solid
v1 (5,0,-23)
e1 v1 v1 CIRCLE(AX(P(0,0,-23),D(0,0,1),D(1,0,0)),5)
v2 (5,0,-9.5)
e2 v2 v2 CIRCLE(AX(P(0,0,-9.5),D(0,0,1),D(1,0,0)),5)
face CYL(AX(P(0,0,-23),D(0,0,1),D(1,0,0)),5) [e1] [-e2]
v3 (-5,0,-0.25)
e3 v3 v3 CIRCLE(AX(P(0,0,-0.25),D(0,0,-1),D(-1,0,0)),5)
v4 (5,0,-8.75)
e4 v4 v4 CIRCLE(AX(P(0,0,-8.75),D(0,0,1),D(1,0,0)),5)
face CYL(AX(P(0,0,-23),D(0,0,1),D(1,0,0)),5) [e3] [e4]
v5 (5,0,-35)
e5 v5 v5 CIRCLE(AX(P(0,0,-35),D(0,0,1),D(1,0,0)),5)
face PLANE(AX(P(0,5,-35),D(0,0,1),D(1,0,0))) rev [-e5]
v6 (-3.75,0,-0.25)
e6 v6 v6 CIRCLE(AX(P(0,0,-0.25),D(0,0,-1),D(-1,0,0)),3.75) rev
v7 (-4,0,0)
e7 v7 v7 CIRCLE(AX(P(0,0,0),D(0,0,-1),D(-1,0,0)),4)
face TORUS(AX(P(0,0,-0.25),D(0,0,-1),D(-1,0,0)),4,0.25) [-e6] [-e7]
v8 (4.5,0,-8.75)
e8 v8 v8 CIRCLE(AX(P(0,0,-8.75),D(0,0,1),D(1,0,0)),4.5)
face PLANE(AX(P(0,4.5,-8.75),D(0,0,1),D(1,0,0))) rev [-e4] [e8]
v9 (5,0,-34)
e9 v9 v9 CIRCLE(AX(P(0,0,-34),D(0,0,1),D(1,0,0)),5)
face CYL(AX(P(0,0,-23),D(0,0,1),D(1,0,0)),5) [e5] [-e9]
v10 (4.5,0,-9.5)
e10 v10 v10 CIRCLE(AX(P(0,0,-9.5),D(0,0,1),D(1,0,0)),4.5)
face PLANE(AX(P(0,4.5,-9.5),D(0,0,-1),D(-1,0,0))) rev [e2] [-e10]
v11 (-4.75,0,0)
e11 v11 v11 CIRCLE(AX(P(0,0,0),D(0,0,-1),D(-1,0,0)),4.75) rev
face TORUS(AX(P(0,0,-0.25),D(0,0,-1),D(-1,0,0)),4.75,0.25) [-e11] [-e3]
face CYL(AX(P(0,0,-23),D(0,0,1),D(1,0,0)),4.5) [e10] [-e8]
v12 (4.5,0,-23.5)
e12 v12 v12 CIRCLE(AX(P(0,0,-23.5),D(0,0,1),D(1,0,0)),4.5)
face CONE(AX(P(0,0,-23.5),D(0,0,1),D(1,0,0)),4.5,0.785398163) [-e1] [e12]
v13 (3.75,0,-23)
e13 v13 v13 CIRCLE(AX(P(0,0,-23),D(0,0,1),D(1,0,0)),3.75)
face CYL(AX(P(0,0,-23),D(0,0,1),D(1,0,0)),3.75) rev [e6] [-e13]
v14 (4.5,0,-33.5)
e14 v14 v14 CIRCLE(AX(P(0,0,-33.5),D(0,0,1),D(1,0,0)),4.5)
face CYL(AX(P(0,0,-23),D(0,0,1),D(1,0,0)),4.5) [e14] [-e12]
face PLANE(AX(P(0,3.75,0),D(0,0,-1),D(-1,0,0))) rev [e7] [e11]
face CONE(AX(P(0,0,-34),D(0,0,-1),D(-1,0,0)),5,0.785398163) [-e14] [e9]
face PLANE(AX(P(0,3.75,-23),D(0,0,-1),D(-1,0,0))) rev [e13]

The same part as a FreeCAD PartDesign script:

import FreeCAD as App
import Part
import Sketcher


def edges_at(feature, points):
    """Names of the edges that pass closest to the given points."""
    edges = feature.Shape.Edges
    near = lambda p: min(range(len(edges)), key=lambda i: edges[i].distToShape(Part.Vertex(*p))[0])
    return sorted({f"Edge{near(p) + 1}" for p in points})


def add_polygon(sketch, points):
    """Adds a closed chain of lines whose ends are joined by coincident constraints."""
    first, n = sketch.GeometryCount, len(points)
    for a, b in zip(points, points[1:] + points[:1]):
        sketch.addGeometry(Part.LineSegment(App.Vector(*a, 0), App.Vector(*b, 0)), False)
    for i in range(n):
        sketch.addConstraint(Sketcher.Constraint("Coincident", first + i, 2, first + (i + 1) % n, 1))

doc = App.newDocument("Part")
params = doc.addObject("Spreadsheet::Sheet", "Params")
for row, (alias, value) in enumerate([
    ("sketch1_width", "5 mm"),
    ("sketch1_height", "12 mm"),
    ("sketch1_height2", "1 mm"),
    ("sketch1_height3", "10 mm"),
    ("sketch1_height4", "23 mm"),
    ("revolution_angle", "360 deg"),
    ("fillet_radius", "0.25 mm"),
], start=1):
    params.set(f"A{row}", alias)
    params.set(f"B{row}", "=" + value)
    params.setAlias(f"B{row}", alias)

body = doc.addObject("PartDesign::Body", "Body")

sketch1 = body.newObject("Sketcher::SketchObject", "Sketch")
sketch1.AttachmentSupport = (doc.getObject("YZ_Plane"), [""])
sketch1.MapMode = "FlatFace"
add_polygon(sketch1, [(0, -23), (0, -35), (5, -35), (5, -34), (4.5, -33.5), (4.5, -23.5), (5, -23), (5, -9.5), (4.5, -9.5), (4.5, -8.8), (5, -8.8), (5, 0), (3.8, 0), (3.8, -23)])
sketch1.addConstraint(Sketcher.Constraint("Vertical", 0))
sketch1.addConstraint(Sketcher.Constraint("Horizontal", 1))
sketch1.addConstraint(Sketcher.Constraint("Vertical", 2))
sketch1.addConstraint(Sketcher.Constraint("Vertical", 4))
sketch1.addConstraint(Sketcher.Constraint("Vertical", 6))
sketch1.addConstraint(Sketcher.Constraint("Horizontal", 7))
sketch1.addConstraint(Sketcher.Constraint("Vertical", 8))
sketch1.addConstraint(Sketcher.Constraint("Horizontal", 9))
sketch1.addConstraint(Sketcher.Constraint("Vertical", 10))
sketch1.addConstraint(Sketcher.Constraint("Horizontal", 11))
sketch1.addConstraint(Sketcher.Constraint("Vertical", 12))
sketch1.addConstraint(Sketcher.Constraint("Horizontal", 13))
sketch1.addConstraint(Sketcher.Constraint("PointOnObject", 0, 2, -2))
sketch1.addConstraint(Sketcher.Constraint("PointOnObject", 10, 2, -1))
sketch1.addConstraint(Sketcher.Constraint("Perpendicular", 3, 5))
sketch1.addConstraint(Sketcher.Constraint("Horizontal", 5, 2, 12, 2))
sketch1.addConstraint(Sketcher.Constraint("Vertical", 2, 2, 5, 2))
sketch1.addConstraint(Sketcher.Constraint("Vertical", 4, 2, 7, 2))
sketch1.addConstraint(Sketcher.Constraint("Vertical", 6, 2, 9, 2))
sketch1.addConstraint(Sketcher.Constraint("Equal", 3, 5))
sketch1.addConstraint(Sketcher.Constraint("DistanceX", 1, 1, 1, 2, 5.0))
sketch1.addConstraint(Sketcher.Constraint("DistanceY", 0, 2, 0, 1, 12.0))
sketch1.addConstraint(Sketcher.Constraint("DistanceY", 2, 1, 2, 2, 1.0))
sketch1.addConstraint(Sketcher.Constraint("DistanceY", 4, 1, 4, 2, 10.0))
sketch1.addConstraint(Sketcher.Constraint("DistanceY", 12, 2, 12, 1, 23.0))
sketch1.addConstraint(Sketcher.Constraint("DistanceY", 6, 1, 6, 2, 13.5))
sketch1.addConstraint(Sketcher.Constraint("DistanceX", 11, 2, 11, 1, 1.25))
sketch1.addConstraint(Sketcher.Constraint("DistanceY", 8, 1, 8, 2, 0.75))
sketch1.setExpression("Constraints[34]", "Params.sketch1_width")
sketch1.setExpression("Constraints[35]", "Params.sketch1_height")
sketch1.setExpression("Constraints[36]", "Params.sketch1_height2")
sketch1.setExpression("Constraints[37]", "Params.sketch1_height3")
sketch1.setExpression("Constraints[38]", "Params.sketch1_height4")
revolution = body.newObject("PartDesign::Revolution", "Revolution")
revolution.Profile = sketch1
revolution.ReferenceAxis = (sketch1, ["V_Axis"])
revolution.setExpression("Angle", "Params.revolution_angle")
doc.recompute()

fillet = body.newObject("PartDesign::Fillet", "Fillet")
fillet.Base = (revolution, edges_at(revolution, [(-3.75, 0, 0), (-5, 0, 0)]))
fillet.setExpression("Radius", "Params.fillet_radius")

doc.recompute()
